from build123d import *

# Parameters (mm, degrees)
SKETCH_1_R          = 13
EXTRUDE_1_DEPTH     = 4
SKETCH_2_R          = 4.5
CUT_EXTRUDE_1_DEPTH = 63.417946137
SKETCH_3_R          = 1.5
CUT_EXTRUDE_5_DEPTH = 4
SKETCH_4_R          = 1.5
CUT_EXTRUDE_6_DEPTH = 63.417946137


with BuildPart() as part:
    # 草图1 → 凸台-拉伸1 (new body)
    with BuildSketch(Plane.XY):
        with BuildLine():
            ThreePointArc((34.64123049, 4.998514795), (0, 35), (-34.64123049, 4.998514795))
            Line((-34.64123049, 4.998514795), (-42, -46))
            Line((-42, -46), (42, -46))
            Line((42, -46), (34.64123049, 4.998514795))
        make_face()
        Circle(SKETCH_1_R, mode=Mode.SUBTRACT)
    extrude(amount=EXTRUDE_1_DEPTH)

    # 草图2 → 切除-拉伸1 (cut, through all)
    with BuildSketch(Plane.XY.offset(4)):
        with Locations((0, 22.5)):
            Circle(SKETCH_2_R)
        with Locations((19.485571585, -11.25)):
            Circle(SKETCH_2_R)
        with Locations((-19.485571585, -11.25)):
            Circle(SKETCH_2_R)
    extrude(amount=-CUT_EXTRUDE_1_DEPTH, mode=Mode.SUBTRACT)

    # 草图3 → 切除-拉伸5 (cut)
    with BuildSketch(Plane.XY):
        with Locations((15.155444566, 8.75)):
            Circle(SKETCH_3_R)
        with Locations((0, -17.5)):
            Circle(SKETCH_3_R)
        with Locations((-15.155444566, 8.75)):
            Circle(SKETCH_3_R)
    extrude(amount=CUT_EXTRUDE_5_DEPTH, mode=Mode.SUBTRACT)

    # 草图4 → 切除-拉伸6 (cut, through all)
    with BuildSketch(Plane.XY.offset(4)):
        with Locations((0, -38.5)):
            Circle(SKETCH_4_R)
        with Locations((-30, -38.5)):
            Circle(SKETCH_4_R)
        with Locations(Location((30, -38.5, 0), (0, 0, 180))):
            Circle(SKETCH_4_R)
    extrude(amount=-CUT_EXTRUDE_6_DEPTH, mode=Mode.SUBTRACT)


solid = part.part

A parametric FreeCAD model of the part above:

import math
import FreeCAD as App
import Part
import Sketcher

V = App.Vector

doc = App.newDocument("Part")
params = doc.addObject("Spreadsheet::Sheet", "Params")
for row, (alias, value) in enumerate([
    ("sketch1_diameter", "26 mm"),
    ("sketch1_radius", "35 mm"),
    ("sketch1_width", "84 mm"),
    ("pad1_length", "4 mm"),
    ("sketch2_diameter", "9 mm"),
    ("sketch3_diameter", "3 mm"),
    ("pocket2_length", "4 mm"),
    ("sketch4_diameter", "3 mm"),
], start=1):
    params.set(f"A{row}", alias)
    params.set(f"B{row}", "=" + value)
    params.setAlias(f"B{row}", alias)

body = doc.addObject("PartDesign::Body", "Body")

# Sketch on XY plane
sketch1 = body.newObject("Sketcher::SketchObject", "Sketch")
sketch1.AttachmentSupport = (doc.getObject("XY_Plane"), [""])
sketch1.MapMode = "FlatFace"
sketch1.addGeometry([
    Part.ArcOfCircle(Part.Circle(V(0, 0, 0), V(0, 0, 1), 35), math.radians(8.210754), math.radians(171.789246)),  # 0
    Part.LineSegment(V(-34.64123, 4.998515, 0), V(-42, -46, 0)),  # 1
    Part.LineSegment(V(-42, -46, 0), V(42, -46, 0)),  # 2
    Part.LineSegment(V(42, -46, 0), V(34.64123, 4.998515, 0)),  # 3
    Part.Circle(V(0, 0, 0), V(0, 0, 1), 13),  # 4
], False)
sketch1.addConstraint([
    Sketcher.Constraint("Tangent", 0, 2, 1, 1),
    Sketcher.Constraint("Coincident", 1, 2, 2, 1),
    Sketcher.Constraint("Coincident", 2, 2, 3, 1),
    Sketcher.Constraint("Tangent", 3, 2, 0, 1),
    Sketcher.Constraint("Horizontal", 2),
    Sketcher.Constraint("Coincident", 0, 3, -1, 1),
    Sketcher.Constraint("Coincident", 4, 3, -1, 1),
    Sketcher.Constraint("Horizontal", 0, 2, 3, 2),
    Sketcher.Constraint("Diameter", 4, 26.0),
    Sketcher.Constraint("Radius", 0, 35.0),
    Sketcher.Constraint("DistanceX", 2, 1, 2, 2, 84.0),
    Sketcher.Constraint("DistanceY", 1, 2, -1, 1, 46.0),
])
sketch1.setExpression("Constraints[8]", "Params.sketch1_diameter")
sketch1.setExpression("Constraints[9]", "Params.sketch1_radius")
sketch1.setExpression("Constraints[10]", "Params.sketch1_width")
pad1 = body.newObject("PartDesign::Pad", "Pad")
pad1.Profile = sketch1
pad1.setExpression("Length", "Params.pad1_length")

# Sketch on XY plane
sketch2 = body.newObject("Sketcher::SketchObject", "Sketch001")
sketch2.AttachmentSupport = (doc.getObject("XY_Plane"), [""])
sketch2.MapMode = "FlatFace"
sketch2.AttachmentOffset = App.Placement(V(0, 0, 4), App.Rotation())
sketch2.addGeometry([
    Part.Circle(V(0, 22.5, 0), V(0, 0, 1), 4.5),
    Part.Circle(V(19.485572, -11.25, 0), V(0, 0, 1), 4.5),
    Part.Circle(V(-19.485572, -11.25, 0), V(0, 0, 1), 4.5),
], False)
sketch2.addConstraint([
    Sketcher.Constraint("Equal", 0, 1),
    Sketcher.Constraint("Equal", 1, 2),
    Sketcher.Constraint("Symmetric", 1, 3, 2, 3, -2),
    Sketcher.Constraint("PointOnObject", 0, 3, -2),
    Sketcher.Constraint("Diameter", 0, 9.0),
    Sketcher.Constraint("DistanceY", -1, 1, 0, 3, 22.5),
    Sketcher.Constraint("DistanceY", 1, 3, -1, 1, 11.25),
    Sketcher.Constraint("DistanceX", -1, 1, 1, 3, 19.485572),
])
sketch2.setExpression("Constraints[4]", "Params.sketch2_diameter")
pocket1 = body.newObject("PartDesign::Pocket", "Pocket")
pocket1.Profile = sketch2
pocket1.Type = "ThroughAll"

# Sketch on XY plane
sketch3 = body.newObject("Sketcher::SketchObject", "Sketch002")
sketch3.AttachmentSupport = (doc.getObject("XY_Plane"), [""])
sketch3.MapMode = "FlatFace"
sketch3.addGeometry([
    Part.Circle(V(15.155445, 8.75, 0), V(0, 0, 1), 1.5),
    Part.Circle(V(0, -17.5, 0), V(0, 0, 1), 1.5),
    Part.Circle(V(-15.155445, 8.75, 0), V(0, 0, 1), 1.5),
], False)
sketch3.addConstraint([
    Sketcher.Constraint("Equal", 0, 1),
    Sketcher.Constraint("Equal", 1, 2),
    Sketcher.Constraint("Symmetric", 0, 3, 2, 3, -2),
    Sketcher.Constraint("PointOnObject", 1, 3, -2),
    Sketcher.Constraint("Diameter", 0, 3.0),
    Sketcher.Constraint("DistanceY", 1, 3, -1, 1, 17.5),
    Sketcher.Constraint("DistanceY", -1, 1, 0, 3, 8.75),
    Sketcher.Constraint("DistanceX", 2, 3, 0, 3, 30.310889),
])
sketch3.setExpression("Constraints[4]", "Params.sketch3_diameter")
pocket2 = body.newObject("PartDesign::Pocket", "Pocket001")
pocket2.Profile = sketch3
pocket2.setExpression("Length", "Params.pocket2_length")
pocket2.Reversed = True

# Sketch on XY plane
sketch4 = body.newObject("Sketcher::SketchObject", "Sketch003")
sketch4.AttachmentSupport = (doc.getObject("XY_Plane"), [""])
sketch4.MapMode = "FlatFace"
sketch4.AttachmentOffset = App.Placement(V(0, 0, 4), App.Rotation())
sketch4.addGeometry([
    Part.Circle(V(0, -38.5, 0), V(0, 0, 1), 1.5),
    Part.Circle(V(-30, -38.5, 0), V(0, 0, 1), 1.5),
    Part.Circle(V(30, -38.5, 0), V(0, 0, 1), 1.5),
], False)
sketch4.addConstraint([
    Sketcher.Constraint("Equal", 0, 1),
    Sketcher.Constraint("Equal", 1, 2),
    Sketcher.Constraint("Symmetric", 1, 3, 2, 3, -2),
    Sketcher.Constraint("PointOnObject", 0, 3, -2),
    Sketcher.Constraint("Horizontal", 0, 3, 1, 3),
    Sketcher.Constraint("Diameter", 0, 3.0),
    Sketcher.Constraint("DistanceX", 1, 3, -1, 1, 30.0),
    Sketcher.Constraint("DistanceY", 0, 3, -1, 1, 38.5),
])
sketch4.setExpression("Constraints[5]", "Params.sketch4_diameter")
pocket3 = body.newObject("PartDesign::Pocket", "Pocket002")
pocket3.Profile = sketch4
pocket3.Type = "ThroughAll"

doc.recompute()
